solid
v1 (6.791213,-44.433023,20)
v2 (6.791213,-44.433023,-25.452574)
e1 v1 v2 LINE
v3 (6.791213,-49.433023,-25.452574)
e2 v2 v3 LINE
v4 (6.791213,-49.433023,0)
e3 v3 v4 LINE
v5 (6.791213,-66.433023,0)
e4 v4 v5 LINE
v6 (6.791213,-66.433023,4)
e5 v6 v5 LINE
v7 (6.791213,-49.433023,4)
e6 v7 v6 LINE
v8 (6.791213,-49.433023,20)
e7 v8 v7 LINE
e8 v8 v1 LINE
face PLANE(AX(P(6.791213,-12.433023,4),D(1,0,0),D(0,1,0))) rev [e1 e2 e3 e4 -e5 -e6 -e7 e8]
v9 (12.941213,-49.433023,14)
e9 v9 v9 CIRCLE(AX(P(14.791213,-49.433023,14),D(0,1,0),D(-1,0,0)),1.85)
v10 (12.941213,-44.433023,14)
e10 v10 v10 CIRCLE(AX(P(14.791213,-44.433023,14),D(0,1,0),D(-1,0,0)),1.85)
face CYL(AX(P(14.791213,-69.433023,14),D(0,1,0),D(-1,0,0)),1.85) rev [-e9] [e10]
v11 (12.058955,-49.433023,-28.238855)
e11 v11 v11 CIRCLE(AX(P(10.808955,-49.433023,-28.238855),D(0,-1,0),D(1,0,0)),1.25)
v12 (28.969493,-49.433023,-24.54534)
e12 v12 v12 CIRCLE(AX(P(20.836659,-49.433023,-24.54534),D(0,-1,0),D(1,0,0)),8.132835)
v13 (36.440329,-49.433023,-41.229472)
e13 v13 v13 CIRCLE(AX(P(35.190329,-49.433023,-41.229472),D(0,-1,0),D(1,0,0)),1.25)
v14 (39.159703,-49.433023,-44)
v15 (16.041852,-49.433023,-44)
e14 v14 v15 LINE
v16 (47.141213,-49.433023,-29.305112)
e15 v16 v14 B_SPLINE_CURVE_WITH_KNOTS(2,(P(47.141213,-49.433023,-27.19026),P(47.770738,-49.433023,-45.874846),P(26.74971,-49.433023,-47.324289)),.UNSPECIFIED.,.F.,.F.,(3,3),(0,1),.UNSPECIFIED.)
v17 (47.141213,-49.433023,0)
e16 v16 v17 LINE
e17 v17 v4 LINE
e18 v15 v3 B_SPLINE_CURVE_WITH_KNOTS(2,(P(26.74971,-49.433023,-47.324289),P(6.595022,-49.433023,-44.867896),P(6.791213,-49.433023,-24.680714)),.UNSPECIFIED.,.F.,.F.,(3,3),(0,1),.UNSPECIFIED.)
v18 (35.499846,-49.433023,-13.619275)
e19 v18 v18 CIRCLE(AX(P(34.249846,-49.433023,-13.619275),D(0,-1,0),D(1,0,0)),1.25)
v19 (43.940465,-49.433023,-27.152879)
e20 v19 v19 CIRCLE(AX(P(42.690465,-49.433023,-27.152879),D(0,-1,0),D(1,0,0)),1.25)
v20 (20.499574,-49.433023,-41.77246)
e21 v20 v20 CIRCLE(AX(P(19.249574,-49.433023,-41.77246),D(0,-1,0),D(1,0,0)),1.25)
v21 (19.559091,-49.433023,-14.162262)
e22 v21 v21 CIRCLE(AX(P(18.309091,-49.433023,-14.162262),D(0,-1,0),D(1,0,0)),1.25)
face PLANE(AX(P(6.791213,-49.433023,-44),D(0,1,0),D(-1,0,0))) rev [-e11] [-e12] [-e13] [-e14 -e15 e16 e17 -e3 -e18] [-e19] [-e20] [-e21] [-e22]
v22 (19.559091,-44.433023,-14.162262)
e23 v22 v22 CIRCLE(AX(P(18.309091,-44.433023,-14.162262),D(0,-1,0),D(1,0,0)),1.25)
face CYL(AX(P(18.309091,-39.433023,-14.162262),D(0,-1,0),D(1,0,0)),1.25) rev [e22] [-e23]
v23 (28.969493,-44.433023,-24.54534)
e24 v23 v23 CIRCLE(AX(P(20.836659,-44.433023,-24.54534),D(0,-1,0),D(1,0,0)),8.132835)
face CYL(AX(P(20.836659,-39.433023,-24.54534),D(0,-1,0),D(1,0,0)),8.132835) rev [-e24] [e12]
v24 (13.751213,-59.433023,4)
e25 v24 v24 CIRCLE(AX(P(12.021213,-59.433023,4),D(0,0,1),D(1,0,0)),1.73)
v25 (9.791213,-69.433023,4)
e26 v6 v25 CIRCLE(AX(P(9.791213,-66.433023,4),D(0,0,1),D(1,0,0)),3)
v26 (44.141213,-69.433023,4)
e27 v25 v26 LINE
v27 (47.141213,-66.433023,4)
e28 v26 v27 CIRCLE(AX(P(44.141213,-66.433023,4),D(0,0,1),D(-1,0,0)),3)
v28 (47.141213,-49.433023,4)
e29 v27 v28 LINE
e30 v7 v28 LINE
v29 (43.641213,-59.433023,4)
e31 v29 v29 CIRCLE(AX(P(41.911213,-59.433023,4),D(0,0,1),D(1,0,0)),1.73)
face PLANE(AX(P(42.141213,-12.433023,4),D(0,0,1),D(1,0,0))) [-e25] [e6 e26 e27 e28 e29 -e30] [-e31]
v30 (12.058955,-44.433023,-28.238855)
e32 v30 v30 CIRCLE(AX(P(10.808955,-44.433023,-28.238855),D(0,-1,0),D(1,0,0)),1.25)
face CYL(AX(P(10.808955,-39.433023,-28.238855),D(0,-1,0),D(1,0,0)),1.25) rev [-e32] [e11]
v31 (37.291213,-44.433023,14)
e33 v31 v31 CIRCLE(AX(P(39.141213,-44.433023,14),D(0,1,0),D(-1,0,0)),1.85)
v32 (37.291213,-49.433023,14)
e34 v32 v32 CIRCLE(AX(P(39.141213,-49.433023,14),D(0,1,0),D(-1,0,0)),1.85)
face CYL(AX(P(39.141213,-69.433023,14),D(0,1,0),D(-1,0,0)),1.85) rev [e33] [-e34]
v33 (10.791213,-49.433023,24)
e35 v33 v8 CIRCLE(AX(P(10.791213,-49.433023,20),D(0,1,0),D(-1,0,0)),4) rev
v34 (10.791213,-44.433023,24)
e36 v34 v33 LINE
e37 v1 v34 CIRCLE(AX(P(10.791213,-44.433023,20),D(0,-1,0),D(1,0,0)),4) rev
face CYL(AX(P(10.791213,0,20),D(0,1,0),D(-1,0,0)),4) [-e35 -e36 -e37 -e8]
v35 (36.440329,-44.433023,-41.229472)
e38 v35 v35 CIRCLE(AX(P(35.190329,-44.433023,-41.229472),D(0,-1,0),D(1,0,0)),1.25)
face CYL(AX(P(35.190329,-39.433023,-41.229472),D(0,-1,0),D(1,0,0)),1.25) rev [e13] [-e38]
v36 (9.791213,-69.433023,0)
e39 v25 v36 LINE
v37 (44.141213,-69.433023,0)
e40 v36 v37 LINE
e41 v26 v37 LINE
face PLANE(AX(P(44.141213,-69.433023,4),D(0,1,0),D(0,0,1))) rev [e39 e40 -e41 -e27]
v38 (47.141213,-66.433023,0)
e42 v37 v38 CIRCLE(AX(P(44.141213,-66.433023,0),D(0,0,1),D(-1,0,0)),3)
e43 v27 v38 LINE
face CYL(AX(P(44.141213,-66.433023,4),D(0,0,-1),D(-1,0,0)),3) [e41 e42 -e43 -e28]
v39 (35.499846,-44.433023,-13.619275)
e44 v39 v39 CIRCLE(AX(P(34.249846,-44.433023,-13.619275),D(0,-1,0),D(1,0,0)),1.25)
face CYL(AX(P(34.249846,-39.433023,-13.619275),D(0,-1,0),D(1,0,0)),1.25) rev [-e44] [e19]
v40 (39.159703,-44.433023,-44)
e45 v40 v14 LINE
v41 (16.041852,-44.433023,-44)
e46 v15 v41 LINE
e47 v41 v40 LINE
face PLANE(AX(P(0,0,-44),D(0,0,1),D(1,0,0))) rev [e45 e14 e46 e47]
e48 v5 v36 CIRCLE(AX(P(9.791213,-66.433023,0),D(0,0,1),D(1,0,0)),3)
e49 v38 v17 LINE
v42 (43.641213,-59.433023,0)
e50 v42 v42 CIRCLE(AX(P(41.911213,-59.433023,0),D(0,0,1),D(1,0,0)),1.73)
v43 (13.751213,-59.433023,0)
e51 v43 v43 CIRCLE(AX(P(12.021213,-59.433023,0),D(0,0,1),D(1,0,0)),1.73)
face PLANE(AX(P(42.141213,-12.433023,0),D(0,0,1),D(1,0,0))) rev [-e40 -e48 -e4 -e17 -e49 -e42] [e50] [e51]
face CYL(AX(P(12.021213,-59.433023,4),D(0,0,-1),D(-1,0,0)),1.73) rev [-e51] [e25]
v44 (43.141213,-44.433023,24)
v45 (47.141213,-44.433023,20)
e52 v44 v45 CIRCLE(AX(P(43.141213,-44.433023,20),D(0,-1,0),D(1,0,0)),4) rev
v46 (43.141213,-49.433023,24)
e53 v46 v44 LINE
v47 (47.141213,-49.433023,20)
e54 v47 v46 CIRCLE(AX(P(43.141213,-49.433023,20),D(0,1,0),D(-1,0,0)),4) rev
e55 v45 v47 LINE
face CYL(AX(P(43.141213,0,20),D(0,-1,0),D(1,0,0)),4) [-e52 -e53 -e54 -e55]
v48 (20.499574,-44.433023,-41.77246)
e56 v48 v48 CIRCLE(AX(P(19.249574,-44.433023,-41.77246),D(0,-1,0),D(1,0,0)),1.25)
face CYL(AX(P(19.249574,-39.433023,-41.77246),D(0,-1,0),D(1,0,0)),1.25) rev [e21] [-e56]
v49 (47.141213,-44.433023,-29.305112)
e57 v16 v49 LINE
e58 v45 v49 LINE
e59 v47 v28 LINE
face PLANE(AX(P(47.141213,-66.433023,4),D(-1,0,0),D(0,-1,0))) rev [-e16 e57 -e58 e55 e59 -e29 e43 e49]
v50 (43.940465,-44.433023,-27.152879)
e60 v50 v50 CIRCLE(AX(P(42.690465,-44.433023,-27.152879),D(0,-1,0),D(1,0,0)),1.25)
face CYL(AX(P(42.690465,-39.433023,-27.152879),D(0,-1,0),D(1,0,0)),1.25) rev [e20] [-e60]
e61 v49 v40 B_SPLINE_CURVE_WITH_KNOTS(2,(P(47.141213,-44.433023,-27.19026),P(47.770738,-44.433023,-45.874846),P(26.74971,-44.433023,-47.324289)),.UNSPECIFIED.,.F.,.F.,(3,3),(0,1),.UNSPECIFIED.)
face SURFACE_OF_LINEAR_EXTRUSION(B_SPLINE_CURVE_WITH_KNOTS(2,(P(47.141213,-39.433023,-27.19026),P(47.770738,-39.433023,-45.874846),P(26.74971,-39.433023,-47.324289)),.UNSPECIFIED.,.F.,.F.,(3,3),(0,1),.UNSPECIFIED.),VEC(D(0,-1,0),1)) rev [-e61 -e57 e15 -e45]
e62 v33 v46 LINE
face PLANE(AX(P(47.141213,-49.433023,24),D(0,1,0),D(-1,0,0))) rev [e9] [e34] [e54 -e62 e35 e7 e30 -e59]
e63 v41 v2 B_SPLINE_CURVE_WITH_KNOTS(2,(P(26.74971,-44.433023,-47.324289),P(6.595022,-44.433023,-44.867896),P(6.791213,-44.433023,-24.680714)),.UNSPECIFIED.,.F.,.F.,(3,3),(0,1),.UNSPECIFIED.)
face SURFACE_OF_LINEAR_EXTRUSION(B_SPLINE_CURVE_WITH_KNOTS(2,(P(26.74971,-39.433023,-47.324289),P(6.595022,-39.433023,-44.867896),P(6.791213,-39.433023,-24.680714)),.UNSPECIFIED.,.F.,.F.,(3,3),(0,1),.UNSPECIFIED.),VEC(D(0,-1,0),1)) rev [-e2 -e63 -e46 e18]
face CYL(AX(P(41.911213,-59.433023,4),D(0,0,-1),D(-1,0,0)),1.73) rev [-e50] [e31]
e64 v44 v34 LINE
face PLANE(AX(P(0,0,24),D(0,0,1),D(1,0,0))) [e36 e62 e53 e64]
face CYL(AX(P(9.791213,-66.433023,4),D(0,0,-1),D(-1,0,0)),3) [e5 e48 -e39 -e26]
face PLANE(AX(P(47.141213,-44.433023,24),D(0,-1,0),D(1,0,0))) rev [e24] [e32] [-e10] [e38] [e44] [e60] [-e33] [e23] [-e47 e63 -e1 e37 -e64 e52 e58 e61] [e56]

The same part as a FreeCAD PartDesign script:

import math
import FreeCAD as App
import Part
import Sketcher
from FreeCAD import Vector
Q = App.Units.Quantity


def edges_at(feature, points):
    """Names of the edges that pass closest to the given points."""
    edges = feature.Shape.Edges
    near = lambda p: min(range(len(edges)), key=lambda i: edges[i].distToShape(Part.Vertex(*p))[0])
    return sorted({f"Edge{near(p) + 1}" for p in points})

doc = App.newDocument("Part")
body = doc.addObject("PartDesign::Body", "Body")

# Sketch on XY plane
sketch1 = body.newObject("Sketcher::SketchObject", "Sketch")
sketch1.AttachmentSupport = (doc.getObject("XY_Plane"), [""])
sketch1.MapMode = "FlatFace"
sketch1.addGeometry([
    Part.LineSegment(Vector(9.791213, -69.433023, 0), Vector(44.141213, -69.433023, 0)),  # 0
    Part.ArcOfCircle(Part.Circle(Vector(44.141213, -66.433023, 0), Vector(0, 0, 1), 3), math.radians(-90), math.radians(0)),  # 1
    Part.LineSegment(Vector(47.141213, -66.433023, 0), Vector(47.141213, -12.433023, 0)),  # 2
    Part.ArcOfCircle(Part.Circle(Vector(42.141213, -12.433023, 0), Vector(0, 0, 1), 5), math.radians(0), math.radians(90)),  # 3
    Part.LineSegment(Vector(42.141213, -7.433023, 0), Vector(11.791213, -7.433023, 0)),  # 4
    Part.ArcOfCircle(Part.Circle(Vector(11.791213, -12.433023, 0), Vector(0, 0, 1), 5), math.radians(90), math.radians(180)),  # 5
    Part.LineSegment(Vector(6.791213, -12.433023, 0), Vector(6.791213, -66.433023, 0)),  # 6
    Part.ArcOfCircle(Part.Circle(Vector(9.791213, -66.433023, 0), Vector(0, 0, 1), 3), math.radians(180), math.radians(270)),  # 7
    Part.Circle(Vector(41.911213, -59.433023, 0), Vector(0, 0, 1), 1.73),  # 8
    Part.Circle(Vector(41.911213, -38.723023, 0), Vector(0, 0, 1), 1.75),  # 9
    Part.Circle(Vector(12.021213, -59.433023, 0), Vector(0, 0, 1), 1.73),  # 10
    Part.Circle(Vector(12.021213, -38.723023, 0), Vector(0, 0, 1), 1.75),  # 11
    Part.Circle(Vector(41.911213, -14.663023, 0), Vector(0, 0, 1), 1.73),  # 12
    Part.Circle(Vector(12.021213, -14.663023, 0), Vector(0, 0, 1), 1.73),  # 13
], False)
sketch1.addConstraint([
    Sketcher.Constraint("Tangent", 0, 2, 1, 1),
    Sketcher.Constraint("Tangent", 1, 2, 2, 1),
    Sketcher.Constraint("Tangent", 2, 2, 3, 1),
    Sketcher.Constraint("Tangent", 3, 2, 4, 1),
    Sketcher.Constraint("Tangent", 4, 2, 5, 1),
    Sketcher.Constraint("Tangent", 5, 2, 6, 1),
    Sketcher.Constraint("Tangent", 6, 2, 7, 1),
    Sketcher.Constraint("Tangent", 7, 2, 0, 1),
    Sketcher.Constraint("Horizontal", 0),
    Sketcher.Constraint("Vertical", 2),
    Sketcher.Constraint("Horizontal", 4),
    Sketcher.Constraint("Vertical", 6),
    Sketcher.Constraint("Equal", 3, 5),
    Sketcher.Constraint("Equal", 1, 7),
    Sketcher.Constraint("Equal", 8, 10),
    Sketcher.Constraint("Equal", 9, 11),
    Sketcher.Constraint("Equal", 10, 12),
    Sketcher.Constraint("Equal", 12, 13),
    Sketcher.Constraint("Horizontal", 8, 3, 10, 3),
    Sketcher.Constraint("Horizontal", 9, 3, 11, 3),
    Sketcher.Constraint("Horizontal", 12, 3, 13, 3),
    Sketcher.Constraint("Vertical", 8, 3, 9, 3),
    Sketcher.Constraint("Vertical", 10, 3, 11, 3),
    Sketcher.Constraint("Vertical", 9, 3, 12, 3),
    Sketcher.Constraint("Vertical", 11, 3, 13, 3),
    Sketcher.Constraint("Radius", 1, Q("3 mm")),
    Sketcher.Constraint("Radius", 3, Q("5 mm")),
    Sketcher.Constraint("Diameter", 9, Q("3.5 mm")),
    Sketcher.Constraint("Diameter", 8, Q("3.46 mm")),
    Sketcher.Constraint("DistanceY", 2, 1, 2, 2, Q("54 mm")),
    Sketcher.Constraint("DistanceY", 1, 3, 8, 3, Q("7 mm")),
    Sketcher.Constraint("DistanceX", 0, 1, 0, 2, Q("34.35 mm")),
    Sketcher.Constraint("DistanceX", 8, 3, 1, 3, Q("2.23 mm")),
    Sketcher.Constraint("DistanceY", 8, 3, 9, 3, Q("20.71 mm")),
    Sketcher.Constraint("DistanceX", 7, 3, 10, 3, Q("2.23 mm")),
    Sketcher.Constraint("DistanceY", 12, 3, 3, 3, Q("2.23 mm")),
    Sketcher.Constraint("DistanceX", -1, 1, 1, 3, Q("44.141213 mm")),
    Sketcher.Constraint("DistanceY", 1, 3, -1, 1, Q("66.433023 mm")),
])
pad1 = body.newObject("PartDesign::Pad", "Pad")
pad1.Profile = sketch1
pad1.Length = 4

# Sketch on XY plane
sketch2 = body.newObject("Sketcher::SketchObject", "Sketch001")
sketch2.AttachmentSupport = (doc.getObject("XY_Plane"), [""])
sketch2.MapMode = "FlatFace"
sketch2.AttachmentOffset = App.Placement(Vector(0, 0, 4), App.Rotation())
sketch2.addGeometry([
    Part.LineSegment(Vector(6.791213, -44.433023, 0), Vector(6.791213, -49.433023, 0)),
    Part.LineSegment(Vector(6.791213, -49.433023, 0), Vector(47.141213, -49.433023, 0)),
    Part.LineSegment(Vector(47.141213, -49.433023, 0), Vector(47.141213, -44.433023, 0)),
    Part.LineSegment(Vector(47.141213, -44.433023, 0), Vector(6.791213, -44.433023, 0)),
], False)
sketch2.addConstraint([
    Sketcher.Constraint("Coincident", 0, 2, 1, 1),
    Sketcher.Constraint("Coincident", 1, 2, 2, 1),
    Sketcher.Constraint("Coincident", 2, 2, 3, 1),
    Sketcher.Constraint("Coincident", 3, 2, 0, 1),
    Sketcher.Constraint("Vertical", 0),
    Sketcher.Constraint("Horizontal", 1),
    Sketcher.Constraint("Vertical", 2),
    Sketcher.Constraint("Horizontal", 3),
    Sketcher.Constraint("DistanceY", 0, 2, 0, 1, Q("5 mm")),
    Sketcher.Constraint("DistanceX", 1, 1, 1, 2, Q("40.35 mm")),
    Sketcher.Constraint("DistanceX", -1, 1, 0, 2, Q("6.791213 mm")),
    Sketcher.Constraint("DistanceY", 0, 2, -1, 1, Q("49.433023 mm")),
])
pad2 = body.newObject("PartDesign::Pad", "Pad001")
pad2.Profile = sketch2
pad2.Length = 20
doc.recompute()

fillet = body.newObject("PartDesign::Fillet", "Fillet")
fillet.Base = (pad2, edges_at(pad2, [(6.791, -46.933, 24), (47.141, -46.933, 24)]))
fillet.Radius = 4

# Sketch on XZ plane
sketch3 = body.newObject("Sketcher::SketchObject", "Sketch002")
sketch3.AttachmentSupport = (doc.getObject("XZ_Plane"), [""])
sketch3.MapMode = "FlatFace"
sketch3.AttachmentOffset = App.Placement(Vector(0, 0, 44.433023), App.Rotation())
sketch3.addGeometry([
    Part.Circle(Vector(39.141213, 14, 0), Vector(0, 0, 1), 1.85),
    Part.Circle(Vector(14.791213, 14, 0), Vector(0, 0, 1), 1.85),
], False)
sketch3.addConstraint([
    Sketcher.Constraint("Equal", 0, 1),
    Sketcher.Constraint("Horizontal", 0, 3, 1, 3),
    Sketcher.Constraint("Diameter", 0, Q("3.7 mm")),
    Sketcher.Constraint("DistanceY", -1, 1, 0, 3, Q("14 mm")),
    Sketcher.Constraint("DistanceX", 1, 3, 0, 3, Q("24.35 mm")),
    Sketcher.Constraint("DistanceX", -1, 1, 0, 3, Q("39.141213 mm")),
])
pocket1 = body.newObject("PartDesign::Pocket", "Pocket")
pocket1.Profile = sketch3
pocket1.Type = "ThroughAll"
pocket1.Reversed = True

# Sketch on XY plane
sketch4 = body.newObject("Sketcher::SketchObject", "Sketch003")
sketch4.AttachmentSupport = (doc.getObject("XY_Plane"), [""])
sketch4.MapMode = "FlatFace"
sketch4.AttachmentOffset = App.Placement(Vector(0, 0, 4), App.Rotation())
sketch4.addGeometry([
    Part.LineSegment(Vector(6.791213, -3.898408, 0), Vector(6.791213, -44.433023, 0)),
    Part.LineSegment(Vector(6.791213, -44.433023, 0), Vector(49.12626, -44.433023, 0)),
    Part.LineSegment(Vector(49.12626, -44.433023, 0), Vector(49.12626, -3.898408, 0)),
    Part.LineSegment(Vector(49.12626, -3.898408, 0), Vector(6.791213, -3.898408, 0)),
], False)
sketch4.addConstraint([
    Sketcher.Constraint("Coincident", 0, 2, 1, 1),
    Sketcher.Constraint("Coincident", 1, 2, 2, 1),
    Sketcher.Constraint("Coincident", 2, 2, 3, 1),
    Sketcher.Constraint("Coincident", 3, 2, 0, 1),
    Sketcher.Constraint("Vertical", 0),
    Sketcher.Constraint("Horizontal", 1),
    Sketcher.Constraint("Vertical", 2),
    Sketcher.Constraint("Horizontal", 3),
    Sketcher.Constraint("DistanceX", 1, 1, 1, 2, Q("42.335047 mm")),
    Sketcher.Constraint("DistanceY", 0, 2, 0, 1, Q("40.534616 mm")),
    Sketcher.Constraint("DistanceX", -1, 1, 1, 2, Q("49.12626 mm")),
    Sketcher.Constraint("DistanceY", 0, 2, -1, 1, Q("44.433023 mm")),
])
pocket2 = body.newObject("PartDesign::Pocket", "Pocket001")
pocket2.Profile = sketch4
pocket2.Type = "ThroughAll"

# Sketch on XY plane
sketch5 = body.newObject("Sketcher::SketchObject", "Sketch004")
sketch5.AttachmentSupport = (doc.getObject("XY_Plane"), [""])
sketch5.MapMode = "FlatFace"
sketch5.addGeometry([
    Part.LineSegment(Vector(47.141213, -44.433023, 0), Vector(47.141213, -49.433023, 0)),
    Part.LineSegment(Vector(47.141213, -49.433023, 0), Vector(6.791213, -49.433023, 0)),
    Part.LineSegment(Vector(6.791213, -49.433023, 0), Vector(6.791213, -44.433023, 0)),
    Part.LineSegment(Vector(6.791213, -44.433023, 0), Vector(47.141213, -44.433023, 0)),
], False)
sketch5.addConstraint([
    Sketcher.Constraint("Coincident", 0, 2, 1, 1),
    Sketcher.Constraint("Coincident", 1, 2, 2, 1),
    Sketcher.Constraint("Coincident", 2, 2, 3, 1),
    Sketcher.Constraint("Coincident", 3, 2, 0, 1),
    Sketcher.Constraint("Vertical", 0),
    Sketcher.Constraint("Horizontal", 1),
    Sketcher.Constraint("Vertical", 2),
    Sketcher.Constraint("Horizontal", 3),
    Sketcher.Constraint("DistanceY", 0, 2, 0, 1, Q("5 mm")),
    Sketcher.Constraint("DistanceX", 1, 2, 1, 1, Q("40.35 mm")),
    Sketcher.Constraint("DistanceX", -1, 1, 0, 2, Q("47.141213 mm")),
    Sketcher.Constraint("DistanceY", 0, 2, -1, 1, Q("49.433023 mm")),
])
pad3 = body.newObject("PartDesign::Pad", "Pad002")
pad3.Profile = sketch5
pad3.Length = 44
pad3.Reversed = True

# Sketch on XZ plane
sketch6 = body.newObject("Sketcher::SketchObject", "Sketch005")
sketch6.AttachmentSupport = (doc.getObject("XZ_Plane"), [""])
sketch6.MapMode = "FlatFace"
sketch6.AttachmentOffset = App.Placement(Vector(0, 0, 49.433023), App.Rotation())
sketch6.addGeometry([
    Part.Circle(Vector(20.836659, -24.54534, 0), Vector(0, 0, 1), 8.132835),  # 0
    Part.Circle(Vector(18.309091, -14.162262, 0), Vector(0, 0, 1), 1.25),  # 1
    Part.Circle(Vector(10.808955, -28.238855, 0), Vector(0, 0, 1), 1.25),  # 2
    Part.Circle(Vector(19.249574, -41.77246, 0), Vector(0, 0, 1), 1.25),  # 3
    Part.Circle(Vector(35.190329, -41.229472, 0), Vector(0, 0, 1), 1.25),  # 4
    Part.Circle(Vector(42.690465, -27.152879, 0), Vector(0, 0, 1), 1.25),  # 5
    Part.Circle(Vector(34.249846, -13.619275, 0), Vector(0, 0, 1), 1.25),  # 6
    Part.LineSegment(Vector(6.791213, -24.680714, 0), Vector(4.58265, -44, 0)),  # 7
    Part.LineSegment(Vector(4.58265, -44, 0), Vector(32.677325, -51.000344, 0)),  # 8
    Part.LineSegment(Vector(32.677325, -51.000344, 0), Vector(44.945122, -48.614201, 0)),  # 9
    Part.LineSegment(Vector(44.945122, -48.614201, 0), Vector(51.549779, -38.819864, 0)),  # 10
    Part.LineSegment(Vector(51.549779, -38.819864, 0), Vector(47.141213, -27.19026, 0)),  # 11
    Part.BSplineCurve([Vector(26.74971, -47.324289, 0), Vector(47.770738, -45.874846, 0), Vector(47.141213, -27.19026, 0)], [3, 3], [0, 1], False, 2, [1, 1, 1], False),  # 12
    Part.BSplineCurve([Vector(6.791213, -24.680714, 0), Vector(6.595022, -44.867896, 0), Vector(26.74971, -47.324289, 0)], [3, 3], [0, 1], False, 2, [1, 1, 1], False),  # 13
], False)
sketch6.addConstraint([
    Sketcher.Constraint("Block", 12),
    Sketcher.Constraint("Block", 13),
    Sketcher.Constraint("Coincident", 7, 2, 8, 1),
    Sketcher.Constraint("Coincident", 8, 2, 9, 1),
    Sketcher.Constraint("Coincident", 9, 2, 10, 1),
    Sketcher.Constraint("Coincident", 10, 2, 11, 1),
    Sketcher.Constraint("Coincident", 11, 2, 12, 2),
    Sketcher.Constraint("Coincident", 13, 1, 7, 1),
    Sketcher.Constraint("Equal", 1, 2),
    Sketcher.Constraint("Equal", 2, 3),
    Sketcher.Constraint("Equal", 3, 4),
    Sketcher.Constraint("Equal", 4, 5),
    Sketcher.Constraint("Equal", 5, 6),
    Sketcher.Constraint("Diameter", 1, Q("2.5 mm")),
    Sketcher.Constraint("DistanceY", 7, 2, -1, 1, Q("44 mm")),
    Sketcher.Constraint("Diameter", 0, Q("16.26567 mm")),
    Sketcher.Constraint("Distance", 9, Q("12.497701 mm")),
    Sketcher.Constraint("DistanceY", 9, 2, -1, 1, Q("48.614201 mm")),
    Sketcher.Constraint("Distance", 8, Q("28.95368 mm")),
    Sketcher.Constraint("Distance", 10, Q("11.813151 mm")),
    Sketcher.Constraint("DistanceX", -1, 1, 0, 3, Q("20.836659 mm")),
    Sketcher.Constraint("DistanceY", 0, 3, -1, 1, Q("24.54534 mm")),
    Sketcher.Constraint("DistanceX", -1, 1, 1, 3, Q("18.309091 mm")),
    Sketcher.Constraint("DistanceY", 3, 3, -1, 1, Q("41.77246 mm")),
    Sketcher.Constraint("DistanceX", -1, 1, 4, 3, Q("35.190329 mm")),
    Sketcher.Constraint("DistanceY", 4, 3, -1, 1, Q("41.229472 mm")),
    Sketcher.Constraint("DistanceY", 5, 3, -1, 1, Q("27.152879 mm")),
    Sketcher.Constraint("DistanceX", -1, 1, 7, 2, Q("4.58265 mm")),
    Sketcher.Constraint("DistanceX", -1, 1, 10, 2, Q("51.549779 mm")),
    Sketcher.Constraint("DistanceX", 2, 3, 3, 3, Q("8.440619 mm")),
    Sketcher.Constraint("DistanceY", 4, 3, 1, 3, Q("27.067209 mm")),
    Sketcher.Constraint("DistanceX", 3, 3, 5, 3, Q("23.440891 mm")),
    Sketcher.Constraint("DistanceX", 6, 3, 5, 3, Q("8.440619 mm")),
    Sketcher.Constraint("DistanceY", 2, 3, 6, 3, Q("14.61958 mm")),
    Sketcher.Constraint("DistanceX", 3, 3, 8, 2, Q("13.427751 mm")),
    Sketcher.Constraint("DistanceX", 3, 3, 9, 2, Q("25.695548 mm")),
    Sketcher.Constraint("DistanceY", 10, 2, 6, 3, Q("25.20059 mm")),
])
pocket3 = body.newObject("PartDesign::Pocket", "Pocket002")
pocket3.Profile = sketch6
pocket3.Length = 10

doc.recompute()
